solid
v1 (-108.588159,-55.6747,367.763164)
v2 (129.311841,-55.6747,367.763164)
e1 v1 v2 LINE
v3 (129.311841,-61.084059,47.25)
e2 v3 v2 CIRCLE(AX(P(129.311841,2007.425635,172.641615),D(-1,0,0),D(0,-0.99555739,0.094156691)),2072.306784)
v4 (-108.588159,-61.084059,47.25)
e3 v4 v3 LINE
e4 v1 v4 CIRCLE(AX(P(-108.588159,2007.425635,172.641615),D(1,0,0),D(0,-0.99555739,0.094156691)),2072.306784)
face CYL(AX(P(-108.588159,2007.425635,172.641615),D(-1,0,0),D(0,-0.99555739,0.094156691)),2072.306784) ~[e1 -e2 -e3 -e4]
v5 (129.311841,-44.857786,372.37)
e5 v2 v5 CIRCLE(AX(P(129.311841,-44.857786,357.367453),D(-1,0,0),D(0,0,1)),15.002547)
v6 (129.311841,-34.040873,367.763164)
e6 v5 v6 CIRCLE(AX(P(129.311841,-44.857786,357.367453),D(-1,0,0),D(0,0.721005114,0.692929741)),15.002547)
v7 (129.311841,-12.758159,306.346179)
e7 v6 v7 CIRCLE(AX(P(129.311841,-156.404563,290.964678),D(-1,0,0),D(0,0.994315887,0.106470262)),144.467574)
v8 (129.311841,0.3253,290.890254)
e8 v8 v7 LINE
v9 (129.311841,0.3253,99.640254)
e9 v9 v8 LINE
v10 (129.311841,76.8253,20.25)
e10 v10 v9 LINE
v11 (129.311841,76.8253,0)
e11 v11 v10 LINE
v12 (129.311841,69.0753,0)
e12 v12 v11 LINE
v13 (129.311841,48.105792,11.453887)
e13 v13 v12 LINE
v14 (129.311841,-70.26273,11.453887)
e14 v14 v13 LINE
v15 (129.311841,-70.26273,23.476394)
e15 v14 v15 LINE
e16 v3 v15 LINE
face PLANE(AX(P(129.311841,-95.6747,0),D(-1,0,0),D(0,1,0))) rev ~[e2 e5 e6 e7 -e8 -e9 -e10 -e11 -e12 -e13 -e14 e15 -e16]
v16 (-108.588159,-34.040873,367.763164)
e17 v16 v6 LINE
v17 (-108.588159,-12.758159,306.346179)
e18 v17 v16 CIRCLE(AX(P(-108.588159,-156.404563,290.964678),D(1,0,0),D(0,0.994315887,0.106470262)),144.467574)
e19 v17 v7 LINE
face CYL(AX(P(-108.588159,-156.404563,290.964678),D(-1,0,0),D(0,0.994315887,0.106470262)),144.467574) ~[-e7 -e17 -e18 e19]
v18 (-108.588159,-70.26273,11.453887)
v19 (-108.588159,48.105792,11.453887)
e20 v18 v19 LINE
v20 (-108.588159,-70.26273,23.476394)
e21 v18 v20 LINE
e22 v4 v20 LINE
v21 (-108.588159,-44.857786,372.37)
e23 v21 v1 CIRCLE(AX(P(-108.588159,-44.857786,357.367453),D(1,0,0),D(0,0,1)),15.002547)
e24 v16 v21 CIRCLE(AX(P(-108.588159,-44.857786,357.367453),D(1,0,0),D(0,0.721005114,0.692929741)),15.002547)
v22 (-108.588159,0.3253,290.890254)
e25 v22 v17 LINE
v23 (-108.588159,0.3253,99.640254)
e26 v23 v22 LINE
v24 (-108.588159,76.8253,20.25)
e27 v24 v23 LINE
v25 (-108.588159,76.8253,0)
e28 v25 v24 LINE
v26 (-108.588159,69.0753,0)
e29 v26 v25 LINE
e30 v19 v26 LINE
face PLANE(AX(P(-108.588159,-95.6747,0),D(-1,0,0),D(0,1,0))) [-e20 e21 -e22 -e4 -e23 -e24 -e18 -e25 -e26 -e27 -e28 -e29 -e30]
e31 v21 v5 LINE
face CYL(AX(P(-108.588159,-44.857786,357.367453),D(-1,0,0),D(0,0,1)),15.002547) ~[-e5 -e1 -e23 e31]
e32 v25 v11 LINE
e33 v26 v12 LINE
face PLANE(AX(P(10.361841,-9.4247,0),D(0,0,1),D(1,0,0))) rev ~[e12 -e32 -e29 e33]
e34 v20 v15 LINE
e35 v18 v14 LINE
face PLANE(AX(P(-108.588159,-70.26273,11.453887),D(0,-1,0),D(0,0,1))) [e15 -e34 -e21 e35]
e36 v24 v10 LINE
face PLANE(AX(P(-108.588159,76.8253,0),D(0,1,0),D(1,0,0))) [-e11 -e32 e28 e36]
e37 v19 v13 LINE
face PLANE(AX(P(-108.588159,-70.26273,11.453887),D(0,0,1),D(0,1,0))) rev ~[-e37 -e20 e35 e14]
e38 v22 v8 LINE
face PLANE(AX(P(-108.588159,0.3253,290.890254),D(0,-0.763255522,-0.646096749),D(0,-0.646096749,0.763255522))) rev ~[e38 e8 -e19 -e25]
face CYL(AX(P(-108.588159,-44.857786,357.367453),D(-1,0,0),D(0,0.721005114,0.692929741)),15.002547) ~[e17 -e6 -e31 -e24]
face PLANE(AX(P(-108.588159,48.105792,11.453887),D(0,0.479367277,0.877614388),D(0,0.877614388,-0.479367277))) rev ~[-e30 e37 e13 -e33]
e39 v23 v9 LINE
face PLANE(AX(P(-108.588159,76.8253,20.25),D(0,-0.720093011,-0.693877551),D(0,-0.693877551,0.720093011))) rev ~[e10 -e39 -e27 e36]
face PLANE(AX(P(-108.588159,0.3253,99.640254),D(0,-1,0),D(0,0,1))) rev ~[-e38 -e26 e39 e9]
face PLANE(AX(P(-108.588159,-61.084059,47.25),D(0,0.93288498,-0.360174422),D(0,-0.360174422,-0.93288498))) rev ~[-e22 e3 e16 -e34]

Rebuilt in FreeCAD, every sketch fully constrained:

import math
import FreeCAD as App
import Part
import Sketcher

V = App.Vector


def add_polygon(sketch, points):
    """Adds a closed chain of lines whose ends are joined by coincident constraints."""
    first, n = sketch.GeometryCount, len(points)
    for a, b in zip(points, points[1:] + points[:1]):
        sketch.addGeometry(Part.LineSegment(App.Vector(*a, 0), App.Vector(*b, 0)), False)
    for i in range(n):
        sketch.addConstraint(Sketcher.Constraint("Coincident", first + i, 2, first + (i + 1) % n, 1))

doc = App.newDocument("Part")
body = doc.addObject("PartDesign::Body", "Body")

# Sketch on XY plane
sketch1 = body.newObject("Sketcher::SketchObject", "Sketch")
sketch1.AttachmentSupport = (doc.getObject("XY_Plane"), [""])
sketch1.MapMode = "FlatFace"
add_polygon(sketch1, [(-108.588159, 76.8253), (-108.588159, -95.6747), (129.311841, -95.6747), (129.311841, 76.8253)])  # lines 0-3
sketch1.addConstraint(Sketcher.Constraint("Vertical", 0))
sketch1.addConstraint(Sketcher.Constraint("Horizontal", 1))
sketch1.addConstraint(Sketcher.Constraint("Vertical", 2))
sketch1.addConstraint(Sketcher.Constraint("Horizontal", 3))
sketch1.addConstraint(Sketcher.Constraint("DistanceX", 1, 1, 1, 2, 237.9))
sketch1.addConstraint(Sketcher.Constraint("DistanceY", 0, 2, 0, 1, 172.5))
sketch1.addConstraint(Sketcher.Constraint("DistanceY", 0, 2, -1, 1, 95.6747))
sketch1.addConstraint(Sketcher.Constraint("DistanceX", 0, 2, -1, 1, 108.588159))
pad1 = body.newObject("PartDesign::Pad", "Pad")
pad1.Profile = sketch1
pad1.Length = 372.37

# Sketch on YZ plane
sketch2 = body.newObject("Sketcher::SketchObject", "Sketch001")
sketch2.AttachmentSupport = (doc.getObject("YZ_Plane"), [""])
sketch2.MapMode = "FlatFace"
sketch2.AttachmentOffset = App.Placement(V(0, 0, -108.588159), App.Rotation())
sketch2.addGeometry(Part.LineSegment(V(48.105792, 11.453887, 0), V(69.0753, 0, 0)), False)
sketch2.addGeometry(Part.LineSegment(V(69.0753, 0, 0), V(-95.6747, 0, 0)), False)
sketch2.addGeometry(Part.LineSegment(V(-95.6747, 0, 0), V(-95.6747, 11.453887, 0)), False)
sketch2.addGeometry(Part.LineSegment(V(-95.6747, 11.453887, 0), V(-95.6747, 372.37, 0)), False)
sketch2.addGeometry(Part.LineSegment(V(-95.6747, 372.37, 0), V(-44.857786, 372.37, 0)), False)
sketch2.addGeometry(Part.ArcOfCircle(Part.Circle(V(-44.857786, 357.367453, 0), V(0, 0, 1), 15.002547), math.radians(90), math.radians(136.137527)), False)
sketch2.addGeometry(Part.ArcOfCircle(Part.Circle(V(2007.425635, 172.641615, 0), V(0, 0, 1), 2072.306784), math.radians(174.597216), math.radians(183.468985)), False)
sketch2.addGeometry(Part.LineSegment(V(-61.084059, 47.25, 0), V(-70.26273, 23.476394, 0)), False)
sketch2.addGeometry(Part.LineSegment(V(-70.26273, 23.476394, 0), V(-70.26273, 11.453887, 0)), False)
sketch2.addGeometry(Part.LineSegment(V(-70.26273, 11.453887, 0), V(48.105792, 11.453887, 0)), False)
sketch2.addGeometry(Part.LineSegment(V(76.8253, 372.37, 0), V(76.8253, 20.25, 0)), False)
sketch2.addGeometry(Part.LineSegment(V(76.8253, 20.25, 0), V(0.3253, 99.640254, 0)), False)
sketch2.addGeometry(Part.LineSegment(V(0.3253, 99.640254, 0), V(0.3253, 290.890254, 0)), False)
sketch2.addGeometry(Part.LineSegment(V(0.3253, 290.890254, 0), V(-12.758159, 306.346179, 0)), False)
sketch2.addGeometry(Part.ArcOfCircle(Part.Circle(V(-156.404563, 290.964678, 0), V(0, 0, 1), 144.467574), math.radians(6.111881), math.radians(32.113401)), False)
sketch2.addGeometry(Part.ArcOfCircle(Part.Circle(V(-44.857786, 357.367453, 0), V(0, 0, 1), 15.002547), math.radians(43.862473), math.radians(90)), False)
sketch2.addGeometry(Part.LineSegment(V(-44.857786, 372.37, 0), V(76.8253, 372.37, 0)), False)
sketch2.addConstraint(Sketcher.Constraint("Coincident", 0, 2, 1, 1))
sketch2.addConstraint(Sketcher.Constraint("Coincident", 1, 2, 2, 1))
sketch2.addConstraint(Sketcher.Constraint("Coincident", 2, 2, 3, 1))
sketch2.addConstraint(Sketcher.Constraint("Coincident", 3, 2, 4, 1))
sketch2.addConstraint(Sketcher.Constraint("Tangent", 4, 2, 5, 1))
sketch2.addConstraint(Sketcher.Constraint("Coincident", 5, 2, 6, 1))
sketch2.addConstraint(Sketcher.Constraint("Coincident", 6, 2, 7, 1))
sketch2.addConstraint(Sketcher.Constraint("Coincident", 7, 2, 8, 1))
sketch2.addConstraint(Sketcher.Constraint("Coincident", 8, 2, 9, 1))
sketch2.addConstraint(Sketcher.Constraint("Coincident", 9, 2, 0, 1))
sketch2.addConstraint(Sketcher.Constraint("Coincident", 10, 2, 11, 1))
sketch2.addConstraint(Sketcher.Constraint("Coincident", 11, 2, 12, 1))
sketch2.addConstraint(Sketcher.Constraint("Coincident", 12, 2, 13, 1))
sketch2.addConstraint(Sketcher.Constraint("Coincident", 13, 2, 14, 1))
sketch2.addConstraint(Sketcher.Constraint("Coincident", 14, 2, 15, 1))
sketch2.addConstraint(Sketcher.Constraint("Tangent", 15, 2, 16, 1))
sketch2.addConstraint(Sketcher.Constraint("Coincident", 16, 2, 10, 1))
sketch2.addConstraint(Sketcher.Constraint("Horizontal", 1))
sketch2.addConstraint(Sketcher.Constraint("Vertical", 2))
sketch2.addConstraint(Sketcher.Constraint("Vertical", 3))
sketch2.addConstraint(Sketcher.Constraint("Horizontal", 4))
sketch2.addConstraint(Sketcher.Constraint("Vertical", 8))
sketch2.addConstraint(Sketcher.Constraint("Horizontal", 9))
sketch2.addConstraint(Sketcher.Constraint("Vertical", 10))
sketch2.addConstraint(Sketcher.Constraint("Vertical", 12))
sketch2.addConstraint(Sketcher.Constraint("Horizontal", 16))
sketch2.addConstraint(Sketcher.Constraint("Coincident", 15, 3, 5, 3))
sketch2.addConstraint(Sketcher.Constraint("Equal", 5, 15))
sketch2.addConstraint(Sketcher.Constraint("PointOnObject", 0, 2, -1))
sketch2.addConstraint(Sketcher.Constraint("Horizontal", 2, 2, 8, 2))
sketch2.addConstraint(Sketcher.Constraint("Horizontal", 5, 2, 14, 2))
sketch2.addConstraint(Sketcher.Constraint("DistanceX", 3, 2, 5, 2, 40.0))
sketch2.addConstraint(Sketcher.Constraint("DistanceX", 5, 2, 12, 2, 56.0))
sketch2.addConstraint(Sketcher.Constraint("DistanceX", 1, 2, 1, 1, 164.75))
sketch2.addConstraint(Sketcher.Constraint("DistanceY", 10, 2, 10, 1, 352.12))
sketch2.addConstraint(Sketcher.Constraint("DistanceY", 12, 1, 12, 2, 191.25))
sketch2.addConstraint(Sketcher.Constraint("DistanceX", 11, 2, 10, 2, 76.5))
sketch2.addConstraint(Sketcher.Constraint("Distance", 11, 110.25))
sketch2.addConstraint(Sketcher.Constraint("Distance", 13, 20.25))
sketch2.addConstraint(Sketcher.Constraint("DistanceY", -1, 1, 3, 2, 372.37))
sketch2.addConstraint(Sketcher.Constraint("Radius", 5, 15.002547))
sketch2.addConstraint(Sketcher.Constraint("Radius", 6, 2072.306784))
sketch2.addConstraint(Sketcher.Constraint("Radius", 14, 144.467574))
sketch2.addConstraint(Sketcher.Constraint("DistanceX", -1, 1, 0, 2, 69.0753))
sketch2.addConstraint(Sketcher.Constraint("Distance", 0, 23.893761))
sketch2.addConstraint(Sketcher.Constraint("DistanceX", 4, 1, 4, 2, 50.816913))
sketch2.addConstraint(Sketcher.Constraint("DistanceX", 9, 1, 9, 2, 118.368522))
sketch2.addConstraint(Sketcher.Constraint("DistanceY", 2, 1, 2, 2, 11.453887))
sketch2.addConstraint(Sketcher.Constraint("DistanceY", 8, 2, 8, 1, 12.022507))
sketch2.addConstraint(Sketcher.Constraint("DistanceY", -1, 1, 14, 3, 290.964678))
sketch2.addConstraint(Sketcher.Constraint("DistanceX", 5, 3, 6, 3, 2052.283421))
sketch2.addConstraint(Sketcher.Constraint("Distance", 7, 25.483963))
pocket1 = body.newObject("PartDesign::Pocket", "Pocket")
pocket1.Profile = sketch2
pocket1.Length = 10000
pocket1.Reversed = True

doc.recompute()
